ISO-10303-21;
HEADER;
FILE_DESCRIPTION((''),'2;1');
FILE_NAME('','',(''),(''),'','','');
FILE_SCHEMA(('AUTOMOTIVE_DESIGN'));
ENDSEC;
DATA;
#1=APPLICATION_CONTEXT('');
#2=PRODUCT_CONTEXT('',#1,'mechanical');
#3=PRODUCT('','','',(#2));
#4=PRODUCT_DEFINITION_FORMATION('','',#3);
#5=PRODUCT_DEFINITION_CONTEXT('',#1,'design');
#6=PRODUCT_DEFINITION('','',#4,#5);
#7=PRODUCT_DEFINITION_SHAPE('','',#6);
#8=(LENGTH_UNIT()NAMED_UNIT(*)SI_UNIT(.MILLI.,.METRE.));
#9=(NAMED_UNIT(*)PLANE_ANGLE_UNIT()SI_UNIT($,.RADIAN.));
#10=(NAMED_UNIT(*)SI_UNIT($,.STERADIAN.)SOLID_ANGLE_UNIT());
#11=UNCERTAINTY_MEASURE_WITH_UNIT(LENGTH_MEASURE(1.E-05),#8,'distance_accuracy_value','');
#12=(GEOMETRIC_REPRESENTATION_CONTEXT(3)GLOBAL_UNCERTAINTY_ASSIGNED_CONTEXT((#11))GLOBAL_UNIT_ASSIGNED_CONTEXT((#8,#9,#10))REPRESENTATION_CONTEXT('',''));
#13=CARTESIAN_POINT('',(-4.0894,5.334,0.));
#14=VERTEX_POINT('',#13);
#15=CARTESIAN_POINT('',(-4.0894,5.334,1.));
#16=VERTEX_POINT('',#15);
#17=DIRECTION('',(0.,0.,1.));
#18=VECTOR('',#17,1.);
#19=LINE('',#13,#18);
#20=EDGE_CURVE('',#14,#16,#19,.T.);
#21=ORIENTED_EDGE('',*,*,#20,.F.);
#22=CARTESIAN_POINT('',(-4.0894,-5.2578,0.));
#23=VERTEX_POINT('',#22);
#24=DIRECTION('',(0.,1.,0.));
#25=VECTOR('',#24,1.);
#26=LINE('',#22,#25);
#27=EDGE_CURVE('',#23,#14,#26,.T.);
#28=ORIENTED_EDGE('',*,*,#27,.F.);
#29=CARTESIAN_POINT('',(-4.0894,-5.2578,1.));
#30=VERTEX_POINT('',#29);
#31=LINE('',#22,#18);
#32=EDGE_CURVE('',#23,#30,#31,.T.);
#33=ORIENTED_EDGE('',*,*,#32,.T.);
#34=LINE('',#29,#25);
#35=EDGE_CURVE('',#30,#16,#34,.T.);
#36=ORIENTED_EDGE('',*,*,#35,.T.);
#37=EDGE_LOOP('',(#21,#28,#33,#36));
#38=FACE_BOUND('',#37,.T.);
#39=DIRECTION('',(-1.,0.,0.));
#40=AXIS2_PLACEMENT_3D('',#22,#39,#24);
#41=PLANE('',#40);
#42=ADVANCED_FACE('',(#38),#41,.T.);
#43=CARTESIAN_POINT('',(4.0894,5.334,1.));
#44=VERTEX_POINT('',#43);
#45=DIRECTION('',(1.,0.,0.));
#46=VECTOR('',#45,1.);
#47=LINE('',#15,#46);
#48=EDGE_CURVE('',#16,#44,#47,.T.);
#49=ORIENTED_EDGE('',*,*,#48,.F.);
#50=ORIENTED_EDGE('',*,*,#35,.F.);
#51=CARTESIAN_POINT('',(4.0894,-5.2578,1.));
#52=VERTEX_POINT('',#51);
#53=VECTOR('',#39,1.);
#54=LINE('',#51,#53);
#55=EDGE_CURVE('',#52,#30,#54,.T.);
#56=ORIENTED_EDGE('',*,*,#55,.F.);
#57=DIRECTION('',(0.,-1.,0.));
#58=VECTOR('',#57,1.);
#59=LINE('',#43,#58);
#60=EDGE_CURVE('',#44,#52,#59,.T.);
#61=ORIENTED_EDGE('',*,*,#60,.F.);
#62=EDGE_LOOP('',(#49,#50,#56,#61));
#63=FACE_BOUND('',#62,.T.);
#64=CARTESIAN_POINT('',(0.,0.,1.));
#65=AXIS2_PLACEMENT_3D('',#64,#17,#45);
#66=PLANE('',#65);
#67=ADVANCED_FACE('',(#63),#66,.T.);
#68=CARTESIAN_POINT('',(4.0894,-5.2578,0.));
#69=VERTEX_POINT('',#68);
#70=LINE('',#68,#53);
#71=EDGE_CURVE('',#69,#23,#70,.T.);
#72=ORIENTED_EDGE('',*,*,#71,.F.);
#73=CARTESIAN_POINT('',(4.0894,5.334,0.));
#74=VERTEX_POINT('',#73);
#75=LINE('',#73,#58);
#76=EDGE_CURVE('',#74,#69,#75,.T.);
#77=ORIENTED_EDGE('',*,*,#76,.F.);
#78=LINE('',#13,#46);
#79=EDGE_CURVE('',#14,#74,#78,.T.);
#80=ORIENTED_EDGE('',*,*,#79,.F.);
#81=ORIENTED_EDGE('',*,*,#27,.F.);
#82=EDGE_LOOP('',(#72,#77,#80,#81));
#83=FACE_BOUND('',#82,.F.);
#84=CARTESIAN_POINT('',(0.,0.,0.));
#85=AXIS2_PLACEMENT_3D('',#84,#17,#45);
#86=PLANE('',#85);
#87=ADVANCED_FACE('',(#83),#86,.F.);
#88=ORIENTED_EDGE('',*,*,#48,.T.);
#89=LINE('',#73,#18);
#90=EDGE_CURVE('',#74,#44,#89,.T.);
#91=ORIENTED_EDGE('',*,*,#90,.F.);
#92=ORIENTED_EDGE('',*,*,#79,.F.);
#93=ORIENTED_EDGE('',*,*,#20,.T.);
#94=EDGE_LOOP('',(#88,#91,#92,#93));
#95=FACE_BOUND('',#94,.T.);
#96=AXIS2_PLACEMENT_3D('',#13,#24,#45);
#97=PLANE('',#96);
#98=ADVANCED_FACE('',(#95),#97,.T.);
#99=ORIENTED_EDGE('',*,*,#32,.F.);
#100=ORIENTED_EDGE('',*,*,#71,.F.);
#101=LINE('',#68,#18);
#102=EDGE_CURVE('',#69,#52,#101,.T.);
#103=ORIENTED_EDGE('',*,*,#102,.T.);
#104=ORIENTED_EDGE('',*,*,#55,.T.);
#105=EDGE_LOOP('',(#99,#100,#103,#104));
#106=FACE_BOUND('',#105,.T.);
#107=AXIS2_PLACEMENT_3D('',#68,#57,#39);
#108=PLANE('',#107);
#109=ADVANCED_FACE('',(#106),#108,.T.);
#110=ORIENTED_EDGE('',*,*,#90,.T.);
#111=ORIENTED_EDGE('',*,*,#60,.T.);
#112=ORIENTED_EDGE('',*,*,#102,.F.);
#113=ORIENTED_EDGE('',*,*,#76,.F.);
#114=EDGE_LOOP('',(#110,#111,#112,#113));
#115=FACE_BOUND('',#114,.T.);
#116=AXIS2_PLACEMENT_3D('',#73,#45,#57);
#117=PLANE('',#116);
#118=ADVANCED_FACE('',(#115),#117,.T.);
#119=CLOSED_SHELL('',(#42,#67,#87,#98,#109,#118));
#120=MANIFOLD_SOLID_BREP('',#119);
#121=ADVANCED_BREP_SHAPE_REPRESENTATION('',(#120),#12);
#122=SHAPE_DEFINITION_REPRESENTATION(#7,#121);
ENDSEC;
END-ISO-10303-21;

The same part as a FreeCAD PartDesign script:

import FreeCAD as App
import Part
import Sketcher
from FreeCAD import Vector
Q = App.Units.Quantity


def add_polygon(sketch, points):
    """Adds a closed chain of lines whose ends are joined by coincident constraints."""
    first, n = sketch.GeometryCount, len(points)
    for a, b in zip(points, points[1:] + points[:1]):
        sketch.addGeometry(Part.LineSegment(App.Vector(*a, 0), App.Vector(*b, 0)), False)
    for i in range(n):
        sketch.addConstraint(Sketcher.Constraint("Coincident", first + i, 2, first + (i + 1) % n, 1))

doc = App.newDocument("Part")
body = doc.addObject("PartDesign::Body", "Body")

# Sketch on XY plane
sketch1 = doc.addObject("Sketcher::SketchObject", "Sketch")
body.addObject(sketch1)
sketch1.AttachmentSupport = (doc.XY_Plane, [""])
sketch1.MapMode = "FlatFace"
add_polygon(sketch1, [(4, 5), (-4, 5), (-4, -5), (4, -5)])  # lines 0-3
sketch1.addConstraint([
    Sketcher.Constraint("Horizontal", 0),
    Sketcher.Constraint("Vertical", 1),
    Sketcher.Constraint("Horizontal", 2),
    Sketcher.Constraint("Vertical", 3),
    Sketcher.Constraint("DistanceX", 0, 2, 0, 1, Q("0.322 in")),
    Sketcher.Constraint("DistanceY", 1, 2, 1, 1, Q("0.417 in")),
    Sketcher.Constraint("DistanceY", -1, 1, 0, 2, Q("0.21 in")),
    Sketcher.Constraint("DistanceX", 0, 2, -1, 1, Q("0.161 in")),
])
pad1 = doc.addObject("PartDesign::Pad", "Pad")
body.addObject(pad1)
pad1.Profile = sketch1
pad1.Length = 1

doc.recompute()
